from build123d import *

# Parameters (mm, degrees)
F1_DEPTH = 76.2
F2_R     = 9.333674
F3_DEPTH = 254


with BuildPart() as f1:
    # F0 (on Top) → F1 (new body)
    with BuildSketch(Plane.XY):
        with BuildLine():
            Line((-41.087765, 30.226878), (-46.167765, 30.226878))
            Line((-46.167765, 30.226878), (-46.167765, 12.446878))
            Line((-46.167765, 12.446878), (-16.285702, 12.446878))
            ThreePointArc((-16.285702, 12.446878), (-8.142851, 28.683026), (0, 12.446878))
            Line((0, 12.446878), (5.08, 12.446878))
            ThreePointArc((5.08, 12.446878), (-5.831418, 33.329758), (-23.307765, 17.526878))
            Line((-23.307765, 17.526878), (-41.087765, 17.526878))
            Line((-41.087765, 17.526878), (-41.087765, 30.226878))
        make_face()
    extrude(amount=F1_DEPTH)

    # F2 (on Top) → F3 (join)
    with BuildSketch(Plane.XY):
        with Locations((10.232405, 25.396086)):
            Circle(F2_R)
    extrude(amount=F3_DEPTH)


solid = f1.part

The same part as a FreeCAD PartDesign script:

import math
import FreeCAD as App
import Part
import Sketcher

V = App.Vector
Q = App.Units.Quantity

doc = App.newDocument("Part")
params = doc.addObject("Spreadsheet::Sheet", "Params")
for row, (alias, value) in enumerate([
    ("sketch1_radius", "0.4 in"),
    ("sketch1_width", "0.2 in"),
    ("sketch1_width2", "0.7 in"),
    ("sketch1_height", "0.5 in"),
    ("pad1_length", "3 in"),
    ("pad2_length", "10 in"),
], start=1):
    params.set(f"A{row}", alias)
    params.set(f"B{row}", "=" + value)
    params.setAlias(f"B{row}", alias)

body = doc.addObject("PartDesign::Body", "Body")

sketch1 = body.newObject("Sketcher::SketchObject", "Sketch")
sketch1.AttachmentSupport = (doc.getObject("XY_Plane"), [""])
sketch1.MapMode = "FlatFace"
sketch1.addGeometry(Part.LineSegment(V(-41, 30, 0), V(-46, 30, 0)), False)
sketch1.addGeometry(Part.LineSegment(V(-46, 30, 0), V(-46, 12, 0)), False)
sketch1.addGeometry(Part.LineSegment(V(-46, 12, 0), V(-16, 12, 0)), False)
sketch1.addGeometry(Part.ArcOfCircle(Part.Circle(V(-8, 19, 0), V(0, 0, 1), 10), math.radians(-37), math.radians(217)), False)
sketch1.addGeometry(Part.LineSegment(V(0, 12, 0), V(5, 12, 0)), False)
sketch1.addGeometry(Part.ArcOfCircle(Part.Circle(V(-8, 19, 0), V(0, 0, 1), 15), math.radians(-25), math.radians(184)), False)
sketch1.addGeometry(Part.LineSegment(V(-23, 18, 0), V(-41, 18, 0)), False)
sketch1.addGeometry(Part.LineSegment(V(-41, 18, 0), V(-41, 30, 0)), False)
sketch1.addConstraint(Sketcher.Constraint("Coincident", 0, 2, 1, 1))
sketch1.addConstraint(Sketcher.Constraint("Coincident", 1, 2, 2, 1))
sketch1.addConstraint(Sketcher.Constraint("Coincident", 2, 2, 3, 2))
sketch1.addConstraint(Sketcher.Constraint("Coincident", 3, 1, 4, 1))
sketch1.addConstraint(Sketcher.Constraint("Coincident", 4, 2, 5, 1))
sketch1.addConstraint(Sketcher.Constraint("Coincident", 5, 2, 6, 1))
sketch1.addConstraint(Sketcher.Constraint("Coincident", 6, 2, 7, 1))
sketch1.addConstraint(Sketcher.Constraint("Coincident", 7, 2, 0, 1))
sketch1.addConstraint(Sketcher.Constraint("Horizontal", 0))
sketch1.addConstraint(Sketcher.Constraint("Vertical", 1))
sketch1.addConstraint(Sketcher.Constraint("Horizontal", 2))
sketch1.addConstraint(Sketcher.Constraint("Horizontal", 4))
sketch1.addConstraint(Sketcher.Constraint("Horizontal", 6))
sketch1.addConstraint(Sketcher.Constraint("Vertical", 7))
sketch1.addConstraint(Sketcher.Constraint("PointOnObject", 3, 1, -2))
sketch1.addConstraint(Sketcher.Constraint("Horizontal", 2, 2, 3, 1))
sketch1.addConstraint(Sketcher.Constraint("Equal", 0, 4))
sketch1.addConstraint(Sketcher.Constraint("Equal", 6, 1))
sketch1.addConstraint(Sketcher.Constraint("Radius", 3, Q("0.4 in")))
sketch1.addConstraint(Sketcher.Constraint("DistanceX", 0, 2, 0, 1, Q("0.2 in")))
sketch1.addConstraint(Sketcher.Constraint("DistanceX", 6, 2, 6, 1, Q("0.7 in")))
sketch1.addConstraint(Sketcher.Constraint("DistanceY", 7, 1, 7, 2, Q("0.5 in")))
sketch1.addConstraint(Sketcher.Constraint("Radius", 5, Q("14.896046 mm")))
sketch1.addConstraint(Sketcher.Constraint("DistanceX", 2, 2, 3, 1, Q("16.285702 mm")))
sketch1.addConstraint(Sketcher.Constraint("DistanceX", 2, 1, 2, 2, Q("29.882063 mm")))
sketch1.addConstraint(Sketcher.Constraint("DistanceY", -1, 1, 3, 1, Q("12.446878 mm")))
sketch1.setExpression("Constraints[18]", "Params.sketch1_radius")
sketch1.setExpression("Constraints[19]", "Params.sketch1_width")
sketch1.setExpression("Constraints[20]", "Params.sketch1_width2")
sketch1.setExpression("Constraints[21]", "Params.sketch1_height")
pad1 = body.newObject("PartDesign::Pad", "Pad")
pad1.Profile = sketch1
pad1.setExpression("Length", "Params.pad1_length")

sketch2 = body.newObject("Sketcher::SketchObject", "Sketch001")
sketch2.AttachmentSupport = (doc.getObject("XY_Plane"), [""])
sketch2.MapMode = "FlatFace"
sketch2.addGeometry(Part.Circle(V(10, 25, 0), V(0, 0, 1), 9), False)
sketch2.addConstraint(Sketcher.Constraint("Diameter", 0, Q("18.667348 mm")))
sketch2.addConstraint(Sketcher.Constraint("DistanceX", -1, 1, 0, 3, Q("10.232405 mm")))
sketch2.addConstraint(Sketcher.Constraint("DistanceY", -1, 1, 0, 3, Q("25.396086 mm")))
pad2 = body.newObject("PartDesign::Pad", "Pad001")
pad2.Profile = sketch2
pad2.setExpression("Length", "Params.pad2_length")

doc.recompute()
